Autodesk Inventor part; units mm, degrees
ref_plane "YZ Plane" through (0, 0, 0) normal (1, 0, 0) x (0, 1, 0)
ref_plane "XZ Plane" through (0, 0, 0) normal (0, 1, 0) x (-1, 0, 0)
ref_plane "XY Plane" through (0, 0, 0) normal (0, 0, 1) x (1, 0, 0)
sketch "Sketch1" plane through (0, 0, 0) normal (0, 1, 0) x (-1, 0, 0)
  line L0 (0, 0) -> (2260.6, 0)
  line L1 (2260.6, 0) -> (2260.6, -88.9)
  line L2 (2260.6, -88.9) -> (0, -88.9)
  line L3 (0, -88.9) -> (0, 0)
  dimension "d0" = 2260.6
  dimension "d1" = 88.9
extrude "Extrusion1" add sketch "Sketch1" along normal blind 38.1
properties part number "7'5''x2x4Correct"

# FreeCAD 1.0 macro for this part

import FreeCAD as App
import Part
import Sketcher

V = App.Vector
Q = App.Units.Quantity


def add_polygon(sketch, points):
    """Adds a closed chain of lines whose ends are joined by coincident constraints."""
    first, n = sketch.GeometryCount, len(points)
    for a, b in zip(points, points[1:] + points[:1]):
        sketch.addGeometry(Part.LineSegment(App.Vector(*a, 0), App.Vector(*b, 0)), False)
    for i in range(n):
        sketch.addConstraint(Sketcher.Constraint("Coincident", first + i, 2, first + (i + 1) % n, 1))

doc = App.newDocument("Part")
body = doc.addObject("PartDesign::Body", "Body")

# Sketch on XZ plane
sketch1 = body.newObject("Sketcher::SketchObject", "Sketch")
sketch1.AttachmentSupport = (doc.getObject("XZ_Plane"), [""])
sketch1.MapMode = "FlatFace"
add_polygon(sketch1, [(-2260.6, 0), (0, 0), (0, -88.9), (-2260.6, -88.9)])  # lines 0-3
sketch1.addConstraint([
    Sketcher.Constraint("Horizontal", 0),
    Sketcher.Constraint("Vertical", 1),
    Sketcher.Constraint("Horizontal", 2),
    Sketcher.Constraint("Vertical", 3),
    Sketcher.Constraint("Coincident", 0, 2, -1, 1),
    Sketcher.Constraint("DistanceX", 0, 1, 0, 2, Q("89 in")),
    Sketcher.Constraint("DistanceY", 1, 2, 1, 1, Q("3.5 in")),
])
pad1 = body.newObject("PartDesign::Pad", "Pad")
pad1.Profile = sketch1
pad1.Length = Q("1.5 in")
pad1.Reversed = True

doc.recompute()
